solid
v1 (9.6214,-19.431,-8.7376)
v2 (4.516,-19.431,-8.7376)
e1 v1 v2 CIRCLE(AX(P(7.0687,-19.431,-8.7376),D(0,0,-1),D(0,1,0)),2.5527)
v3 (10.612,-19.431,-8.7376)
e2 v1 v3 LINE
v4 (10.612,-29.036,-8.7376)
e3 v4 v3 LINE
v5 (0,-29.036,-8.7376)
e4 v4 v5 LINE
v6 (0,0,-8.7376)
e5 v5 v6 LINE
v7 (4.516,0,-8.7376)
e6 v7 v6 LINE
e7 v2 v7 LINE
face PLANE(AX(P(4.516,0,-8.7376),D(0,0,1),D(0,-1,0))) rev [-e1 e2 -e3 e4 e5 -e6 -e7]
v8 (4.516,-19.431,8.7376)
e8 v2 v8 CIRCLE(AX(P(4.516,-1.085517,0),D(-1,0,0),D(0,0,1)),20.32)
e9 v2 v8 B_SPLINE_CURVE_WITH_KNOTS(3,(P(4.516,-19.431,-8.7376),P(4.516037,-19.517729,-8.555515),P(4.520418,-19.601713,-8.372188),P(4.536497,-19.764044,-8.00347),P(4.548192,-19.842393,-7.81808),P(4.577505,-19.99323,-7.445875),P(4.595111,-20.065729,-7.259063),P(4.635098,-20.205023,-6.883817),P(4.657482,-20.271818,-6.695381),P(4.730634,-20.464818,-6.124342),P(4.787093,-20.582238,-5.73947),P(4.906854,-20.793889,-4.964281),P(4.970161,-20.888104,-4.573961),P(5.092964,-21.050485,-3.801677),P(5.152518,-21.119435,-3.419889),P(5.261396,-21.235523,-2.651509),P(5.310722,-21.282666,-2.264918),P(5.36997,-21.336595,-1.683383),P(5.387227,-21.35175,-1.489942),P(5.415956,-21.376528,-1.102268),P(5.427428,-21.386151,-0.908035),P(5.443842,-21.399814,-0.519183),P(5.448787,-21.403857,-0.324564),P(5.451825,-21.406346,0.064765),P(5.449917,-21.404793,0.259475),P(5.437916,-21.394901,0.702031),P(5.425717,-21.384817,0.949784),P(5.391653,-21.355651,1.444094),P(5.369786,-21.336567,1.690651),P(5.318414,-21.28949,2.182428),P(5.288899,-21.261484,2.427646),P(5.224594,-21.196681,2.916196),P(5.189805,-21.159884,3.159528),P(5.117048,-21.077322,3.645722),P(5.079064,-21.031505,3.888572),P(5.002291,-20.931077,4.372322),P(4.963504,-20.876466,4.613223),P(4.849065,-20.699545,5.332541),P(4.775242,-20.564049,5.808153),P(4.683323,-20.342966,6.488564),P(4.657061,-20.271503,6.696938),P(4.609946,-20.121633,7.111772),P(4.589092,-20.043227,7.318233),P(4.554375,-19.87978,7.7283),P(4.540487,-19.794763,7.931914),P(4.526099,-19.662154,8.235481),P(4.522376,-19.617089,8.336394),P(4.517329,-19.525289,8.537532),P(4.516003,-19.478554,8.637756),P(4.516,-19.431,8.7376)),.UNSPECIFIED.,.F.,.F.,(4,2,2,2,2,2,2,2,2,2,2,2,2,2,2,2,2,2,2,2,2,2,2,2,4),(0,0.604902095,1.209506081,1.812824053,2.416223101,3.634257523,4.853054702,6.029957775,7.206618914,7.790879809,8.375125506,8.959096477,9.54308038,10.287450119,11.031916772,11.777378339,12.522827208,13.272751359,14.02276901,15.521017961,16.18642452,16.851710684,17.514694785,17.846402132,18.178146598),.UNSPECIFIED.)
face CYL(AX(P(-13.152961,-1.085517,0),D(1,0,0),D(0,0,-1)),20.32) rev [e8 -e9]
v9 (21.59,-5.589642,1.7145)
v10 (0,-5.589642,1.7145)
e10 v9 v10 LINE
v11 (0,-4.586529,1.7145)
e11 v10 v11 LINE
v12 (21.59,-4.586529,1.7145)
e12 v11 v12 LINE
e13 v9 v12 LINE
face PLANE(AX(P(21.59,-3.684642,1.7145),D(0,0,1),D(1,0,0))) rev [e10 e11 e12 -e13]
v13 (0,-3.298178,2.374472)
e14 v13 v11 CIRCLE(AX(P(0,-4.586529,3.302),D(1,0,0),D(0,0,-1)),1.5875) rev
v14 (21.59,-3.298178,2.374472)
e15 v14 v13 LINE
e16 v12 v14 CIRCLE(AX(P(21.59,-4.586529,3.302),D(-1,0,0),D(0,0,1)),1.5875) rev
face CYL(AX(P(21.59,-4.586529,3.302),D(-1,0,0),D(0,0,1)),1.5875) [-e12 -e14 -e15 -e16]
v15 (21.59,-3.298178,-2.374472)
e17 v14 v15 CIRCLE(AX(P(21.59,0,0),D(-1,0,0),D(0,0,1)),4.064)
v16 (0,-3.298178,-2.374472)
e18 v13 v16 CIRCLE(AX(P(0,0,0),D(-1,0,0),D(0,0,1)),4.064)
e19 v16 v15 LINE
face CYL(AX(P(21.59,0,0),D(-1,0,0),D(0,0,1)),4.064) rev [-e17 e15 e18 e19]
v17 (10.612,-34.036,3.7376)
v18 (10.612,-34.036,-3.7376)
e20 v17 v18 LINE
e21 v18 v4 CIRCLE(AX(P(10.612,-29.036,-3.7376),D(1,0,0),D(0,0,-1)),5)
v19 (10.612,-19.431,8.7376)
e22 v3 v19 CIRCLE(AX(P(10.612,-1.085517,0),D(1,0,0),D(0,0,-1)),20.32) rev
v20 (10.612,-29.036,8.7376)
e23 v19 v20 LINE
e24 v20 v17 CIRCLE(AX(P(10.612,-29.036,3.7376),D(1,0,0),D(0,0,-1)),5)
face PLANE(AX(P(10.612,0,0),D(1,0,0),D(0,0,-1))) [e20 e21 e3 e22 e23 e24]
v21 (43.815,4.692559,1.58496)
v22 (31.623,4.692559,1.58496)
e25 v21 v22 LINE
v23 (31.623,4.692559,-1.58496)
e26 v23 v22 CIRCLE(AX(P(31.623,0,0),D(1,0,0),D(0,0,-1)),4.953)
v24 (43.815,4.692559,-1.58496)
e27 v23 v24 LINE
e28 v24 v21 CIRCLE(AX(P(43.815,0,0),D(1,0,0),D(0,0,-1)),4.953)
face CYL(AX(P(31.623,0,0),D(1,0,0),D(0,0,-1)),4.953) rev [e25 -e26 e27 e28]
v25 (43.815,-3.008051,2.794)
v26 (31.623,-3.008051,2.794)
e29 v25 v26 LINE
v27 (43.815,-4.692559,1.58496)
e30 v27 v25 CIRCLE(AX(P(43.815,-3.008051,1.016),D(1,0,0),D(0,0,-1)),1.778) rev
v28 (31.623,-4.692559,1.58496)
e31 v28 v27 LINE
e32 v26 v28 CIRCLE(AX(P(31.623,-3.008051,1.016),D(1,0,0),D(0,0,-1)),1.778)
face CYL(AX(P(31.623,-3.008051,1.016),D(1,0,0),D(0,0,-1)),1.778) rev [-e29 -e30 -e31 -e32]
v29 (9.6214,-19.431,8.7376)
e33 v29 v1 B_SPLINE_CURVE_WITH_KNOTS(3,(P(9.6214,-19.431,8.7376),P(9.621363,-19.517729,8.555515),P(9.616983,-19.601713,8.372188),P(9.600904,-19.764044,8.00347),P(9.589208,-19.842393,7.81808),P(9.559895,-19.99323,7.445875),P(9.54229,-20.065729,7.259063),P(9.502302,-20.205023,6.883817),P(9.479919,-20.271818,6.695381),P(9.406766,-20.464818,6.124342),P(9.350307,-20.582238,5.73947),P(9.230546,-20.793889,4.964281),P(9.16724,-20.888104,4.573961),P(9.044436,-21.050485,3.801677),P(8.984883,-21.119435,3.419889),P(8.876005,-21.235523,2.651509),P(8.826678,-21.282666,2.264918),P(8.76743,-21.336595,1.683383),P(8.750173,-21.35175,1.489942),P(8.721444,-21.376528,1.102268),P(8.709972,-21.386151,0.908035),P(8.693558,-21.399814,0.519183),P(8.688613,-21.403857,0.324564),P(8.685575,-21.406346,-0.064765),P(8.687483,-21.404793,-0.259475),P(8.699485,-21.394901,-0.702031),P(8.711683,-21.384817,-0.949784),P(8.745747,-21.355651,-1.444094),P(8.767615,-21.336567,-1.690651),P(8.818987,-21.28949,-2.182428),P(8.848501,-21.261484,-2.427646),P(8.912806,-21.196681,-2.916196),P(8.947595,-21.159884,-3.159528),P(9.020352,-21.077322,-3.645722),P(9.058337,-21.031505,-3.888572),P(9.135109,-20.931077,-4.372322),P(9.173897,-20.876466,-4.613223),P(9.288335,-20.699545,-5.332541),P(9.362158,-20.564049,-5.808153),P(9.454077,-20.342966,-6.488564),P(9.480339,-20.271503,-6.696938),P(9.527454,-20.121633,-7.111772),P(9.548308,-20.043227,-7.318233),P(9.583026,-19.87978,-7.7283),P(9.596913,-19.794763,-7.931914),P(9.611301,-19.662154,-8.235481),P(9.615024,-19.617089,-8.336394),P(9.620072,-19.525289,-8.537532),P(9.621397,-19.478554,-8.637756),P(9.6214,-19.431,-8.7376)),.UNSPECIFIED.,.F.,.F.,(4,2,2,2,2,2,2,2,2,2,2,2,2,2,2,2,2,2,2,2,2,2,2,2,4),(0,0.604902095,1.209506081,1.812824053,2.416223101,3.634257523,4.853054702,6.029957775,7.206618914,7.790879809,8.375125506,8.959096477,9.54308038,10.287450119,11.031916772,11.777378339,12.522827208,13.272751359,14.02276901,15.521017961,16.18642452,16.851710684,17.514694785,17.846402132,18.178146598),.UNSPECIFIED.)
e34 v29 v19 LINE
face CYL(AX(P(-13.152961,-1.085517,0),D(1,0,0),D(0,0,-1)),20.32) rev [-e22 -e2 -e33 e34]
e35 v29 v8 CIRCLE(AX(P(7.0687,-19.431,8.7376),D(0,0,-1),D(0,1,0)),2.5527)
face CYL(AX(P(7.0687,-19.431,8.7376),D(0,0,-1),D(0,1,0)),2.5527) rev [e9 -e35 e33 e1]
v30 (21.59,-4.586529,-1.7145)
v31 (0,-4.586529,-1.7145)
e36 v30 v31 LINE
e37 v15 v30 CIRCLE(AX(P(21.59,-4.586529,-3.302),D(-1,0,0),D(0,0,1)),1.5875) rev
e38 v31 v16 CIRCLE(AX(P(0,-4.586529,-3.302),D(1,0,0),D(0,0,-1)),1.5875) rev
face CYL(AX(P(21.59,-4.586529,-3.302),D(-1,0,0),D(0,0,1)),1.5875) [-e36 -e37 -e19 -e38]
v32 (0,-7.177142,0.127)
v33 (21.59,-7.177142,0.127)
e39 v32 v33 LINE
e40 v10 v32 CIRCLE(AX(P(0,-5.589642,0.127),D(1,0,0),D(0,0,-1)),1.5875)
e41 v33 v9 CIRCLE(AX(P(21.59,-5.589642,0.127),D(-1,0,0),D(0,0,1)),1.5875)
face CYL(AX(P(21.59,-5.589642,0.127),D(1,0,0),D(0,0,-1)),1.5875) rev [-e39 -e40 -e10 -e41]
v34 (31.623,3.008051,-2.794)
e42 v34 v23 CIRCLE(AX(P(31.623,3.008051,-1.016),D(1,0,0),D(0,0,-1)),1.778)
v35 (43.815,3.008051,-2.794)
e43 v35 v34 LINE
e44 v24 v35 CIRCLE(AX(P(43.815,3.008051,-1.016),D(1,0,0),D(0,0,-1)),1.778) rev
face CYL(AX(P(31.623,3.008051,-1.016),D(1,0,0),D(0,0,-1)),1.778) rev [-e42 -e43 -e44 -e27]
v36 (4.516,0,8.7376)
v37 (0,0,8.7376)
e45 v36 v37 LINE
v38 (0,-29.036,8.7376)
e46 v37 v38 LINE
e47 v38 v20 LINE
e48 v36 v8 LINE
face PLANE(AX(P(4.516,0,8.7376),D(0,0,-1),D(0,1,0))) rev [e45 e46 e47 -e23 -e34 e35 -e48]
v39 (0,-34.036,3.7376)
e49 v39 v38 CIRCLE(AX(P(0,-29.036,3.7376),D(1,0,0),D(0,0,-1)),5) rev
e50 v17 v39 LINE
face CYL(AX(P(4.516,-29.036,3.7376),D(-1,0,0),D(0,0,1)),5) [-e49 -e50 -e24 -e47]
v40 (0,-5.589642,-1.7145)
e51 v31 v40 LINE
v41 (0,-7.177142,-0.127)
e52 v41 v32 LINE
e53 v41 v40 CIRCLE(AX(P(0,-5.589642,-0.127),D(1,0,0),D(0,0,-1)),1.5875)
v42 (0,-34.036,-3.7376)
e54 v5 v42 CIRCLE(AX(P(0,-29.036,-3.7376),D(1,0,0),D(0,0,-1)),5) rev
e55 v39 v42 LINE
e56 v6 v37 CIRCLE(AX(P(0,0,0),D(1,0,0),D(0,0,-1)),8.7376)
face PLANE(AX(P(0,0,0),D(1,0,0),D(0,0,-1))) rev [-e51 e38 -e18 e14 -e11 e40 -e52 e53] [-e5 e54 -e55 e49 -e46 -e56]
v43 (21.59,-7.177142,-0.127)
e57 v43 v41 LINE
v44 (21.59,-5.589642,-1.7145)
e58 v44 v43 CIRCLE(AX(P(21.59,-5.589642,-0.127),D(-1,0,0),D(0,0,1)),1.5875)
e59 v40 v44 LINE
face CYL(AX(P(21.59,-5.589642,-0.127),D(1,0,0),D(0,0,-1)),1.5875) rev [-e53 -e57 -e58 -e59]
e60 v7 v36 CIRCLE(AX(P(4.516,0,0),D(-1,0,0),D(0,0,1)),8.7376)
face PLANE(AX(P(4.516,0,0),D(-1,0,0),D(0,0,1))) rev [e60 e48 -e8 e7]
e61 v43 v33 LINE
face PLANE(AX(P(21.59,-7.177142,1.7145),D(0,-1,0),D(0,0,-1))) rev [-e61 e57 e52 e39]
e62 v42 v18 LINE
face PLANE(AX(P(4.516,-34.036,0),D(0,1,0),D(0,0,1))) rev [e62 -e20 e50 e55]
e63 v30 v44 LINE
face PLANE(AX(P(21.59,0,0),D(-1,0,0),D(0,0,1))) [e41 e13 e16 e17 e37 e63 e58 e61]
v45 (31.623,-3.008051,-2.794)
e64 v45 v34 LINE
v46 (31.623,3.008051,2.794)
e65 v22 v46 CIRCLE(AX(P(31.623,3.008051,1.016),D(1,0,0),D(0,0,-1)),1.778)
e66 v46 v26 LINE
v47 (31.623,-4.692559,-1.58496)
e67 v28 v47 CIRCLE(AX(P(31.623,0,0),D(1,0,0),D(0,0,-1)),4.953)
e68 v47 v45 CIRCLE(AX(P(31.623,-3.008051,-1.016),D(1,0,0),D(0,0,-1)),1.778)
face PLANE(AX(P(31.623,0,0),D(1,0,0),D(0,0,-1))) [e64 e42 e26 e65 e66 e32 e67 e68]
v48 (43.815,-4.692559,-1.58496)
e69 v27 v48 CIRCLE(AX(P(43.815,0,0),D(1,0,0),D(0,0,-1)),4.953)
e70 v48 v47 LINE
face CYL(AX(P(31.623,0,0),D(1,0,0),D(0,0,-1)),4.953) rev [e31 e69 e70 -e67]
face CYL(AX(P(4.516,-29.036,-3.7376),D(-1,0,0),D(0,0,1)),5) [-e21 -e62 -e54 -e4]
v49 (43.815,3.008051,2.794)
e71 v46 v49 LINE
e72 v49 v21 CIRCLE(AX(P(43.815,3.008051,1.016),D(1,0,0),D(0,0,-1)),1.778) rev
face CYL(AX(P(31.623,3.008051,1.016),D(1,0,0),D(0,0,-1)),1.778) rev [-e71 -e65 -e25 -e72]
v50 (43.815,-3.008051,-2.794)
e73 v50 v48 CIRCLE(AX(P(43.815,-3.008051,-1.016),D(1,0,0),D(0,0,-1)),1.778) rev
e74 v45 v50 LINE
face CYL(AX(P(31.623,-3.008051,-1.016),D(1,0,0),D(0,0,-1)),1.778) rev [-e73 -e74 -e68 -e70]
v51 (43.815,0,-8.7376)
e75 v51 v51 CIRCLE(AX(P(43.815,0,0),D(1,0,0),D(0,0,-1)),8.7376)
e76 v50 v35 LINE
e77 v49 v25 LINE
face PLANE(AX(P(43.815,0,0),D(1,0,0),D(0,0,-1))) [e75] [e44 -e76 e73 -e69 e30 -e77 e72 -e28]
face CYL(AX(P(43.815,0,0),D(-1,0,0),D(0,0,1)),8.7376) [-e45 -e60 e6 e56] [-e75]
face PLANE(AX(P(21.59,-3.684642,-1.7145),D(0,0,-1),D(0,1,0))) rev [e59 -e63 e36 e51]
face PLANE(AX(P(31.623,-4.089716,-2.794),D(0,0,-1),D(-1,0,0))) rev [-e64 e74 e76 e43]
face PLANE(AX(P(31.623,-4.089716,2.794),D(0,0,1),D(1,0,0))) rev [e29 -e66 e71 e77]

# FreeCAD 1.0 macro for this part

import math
import FreeCAD as App
import Part
import Sketcher

V = App.Vector
Q = App.Units.Quantity


def edges_at(feature, points):
    """Names of the edges that pass closest to the given points."""
    edges = feature.Shape.Edges
    near = lambda p: min(range(len(edges)), key=lambda i: edges[i].distToShape(Part.Vertex(*p))[0])
    return sorted({f"Edge{near(p) + 1}" for p in points})

doc = App.newDocument("Part")
params = doc.addObject("Spreadsheet::Sheet", "Params")
for row, (alias, value) in enumerate([
    ("sketch1_diameter", "0.688 in"),
    ("pad1_length", "1.725 in"),
    ("sketch2_radius", "0.344 in"),
    ("sketch2_width", "1.34 in"),
    ("pad2_length", "4.516 mm"),
    ("fillet_radius", "5 mm"),
    ("sketch3_height", "0.688 in"),
    ("pad3_length", "0.24 in"),
    ("sketch4_radius", "0.8 in"),
    ("sketch4_width", "0.025 in"),
    ("sketch4_height", "0.688 in"),
    ("pocket1_length", "0.24 in"),
    ("sketch5_radius", "0.195 in"),
    ("pocket2_length", "0.48 in"),
    ("fillet2_radius", "0.07 in"),
    ("sketch6_diameter", "0.201 in"),
    ("sketch7_radius", "0.16 in"),
    ("sketch7_height", "0.135 in"),
    ("pocket4_length", "0.85 in"),
    ("fillet3_radius", "0.0625 in"),
], start=1):
    params.set(f"A{row}", alias)
    params.set(f"B{row}", "=" + value)
    params.setAlias(f"B{row}", alias)

body = doc.addObject("PartDesign::Body", "Body")

# Sketch on YZ plane
sketch1 = body.newObject("Sketcher::SketchObject", "Sketch")
sketch1.AttachmentSupport = (doc.getObject("YZ_Plane"), [""])
sketch1.MapMode = "FlatFace"
sketch1.addGeometry(Part.Circle(V(0, 0, 0), V(0, 0, 1), 9), False)
sketch1.addConstraint(Sketcher.Constraint("Coincident", 0, 3, -1, 1))
sketch1.addConstraint(Sketcher.Constraint("Diameter", 0, Q("0.688 in")))
sketch1.setExpression("Constraints[1]", "Params.sketch1_diameter")
pad1 = body.newObject("PartDesign::Pad", "Pad")
pad1.Profile = sketch1
pad1.setExpression("Length", "Params.pad1_length")

# Sketch on YZ plane
sketch2 = body.newObject("Sketcher::SketchObject", "Sketch001")
sketch2.AttachmentSupport = (doc.getObject("YZ_Plane"), [""])
sketch2.MapMode = "FlatFace"
sketch2.addGeometry(Part.LineSegment(V(-34, 9, 0), V(0, 9, 0)), False)
sketch2.addGeometry(Part.ArcOfCircle(Part.Circle(V(0, 0, 0), V(0, 0, 1), 9), math.radians(90), math.radians(270)), False)
sketch2.addGeometry(Part.LineSegment(V(0, -9, 0), V(-34, -9, 0)), False)
sketch2.addGeometry(Part.LineSegment(V(-34, -9, 0), V(-34, 9, 0)), False)
sketch2.addConstraint(Sketcher.Constraint("Tangent", 0, 2, 1, 1))
sketch2.addConstraint(Sketcher.Constraint("Tangent", 1, 2, 2, 1))
sketch2.addConstraint(Sketcher.Constraint("Coincident", 2, 2, 3, 1))
sketch2.addConstraint(Sketcher.Constraint("Coincident", 3, 2, 0, 1))
sketch2.addConstraint(Sketcher.Constraint("Horizontal", 0))
sketch2.addConstraint(Sketcher.Constraint("Horizontal", 2))
sketch2.addConstraint(Sketcher.Constraint("Vertical", 3))
sketch2.addConstraint(Sketcher.Constraint("Coincident", 1, 3, -1, 1))
sketch2.addConstraint(Sketcher.Constraint("Radius", 1, Q("0.344 in")))
sketch2.addConstraint(Sketcher.Constraint("DistanceX", 0, 1, 0, 2, Q("1.34 in")))
sketch2.setExpression("Constraints[8]", "Params.sketch2_radius")
sketch2.setExpression("Constraints[9]", "Params.sketch2_width")
pad2 = body.newObject("PartDesign::Pad", "Pad001")
pad2.Profile = sketch2
pad2.setExpression("Length", "Params.pad2_length")
doc.recompute()

fillet = body.newObject("PartDesign::Fillet", "Fillet")
fillet.Base = (pad2, edges_at(pad2, [(2.258, -34.036, 8.738), (2.258, -34.036, -8.738)]))
fillet.setExpression("Radius", "Params.fillet_radius")

# Sketch on YZ plane
sketch3 = body.newObject("Sketcher::SketchObject", "Sketch002")
sketch3.AttachmentSupport = (doc.getObject("YZ_Plane"), [""])
sketch3.MapMode = "FlatFace"
sketch3.AttachmentOffset = App.Placement(V(0, 0, 10.612), App.Rotation())
sketch3.addGeometry(Part.LineSegment(V(-19, 9, 0), V(-29, 9, 0)), False)
sketch3.addGeometry(Part.ArcOfCircle(Part.Circle(V(-29, 4, 0), V(0, 0, 1), 5), math.radians(90), math.radians(180)), False)
sketch3.addGeometry(Part.LineSegment(V(-34, 4, 0), V(-34, -4, 0)), False)
sketch3.addGeometry(Part.ArcOfCircle(Part.Circle(V(-29, -4, 0), V(0, 0, 1), 5), math.radians(180), math.radians(270)), False)
sketch3.addGeometry(Part.LineSegment(V(-29, -9, 0), V(-19, -9, 0)), False)
sketch3.addGeometry(Part.LineSegment(V(-19, -9, 0), V(-19, 9, 0)), False)
sketch3.addConstraint(Sketcher.Constraint("Tangent", 0, 2, 1, 1))
sketch3.addConstraint(Sketcher.Constraint("Tangent", 1, 2, 2, 1))
sketch3.addConstraint(Sketcher.Constraint("Tangent", 2, 2, 3, 1))
sketch3.addConstraint(Sketcher.Constraint("Tangent", 3, 2, 4, 1))
sketch3.addConstraint(Sketcher.Constraint("Coincident", 4, 2, 5, 1))
sketch3.addConstraint(Sketcher.Constraint("Coincident", 5, 2, 0, 1))
sketch3.addConstraint(Sketcher.Constraint("Horizontal", 0))
sketch3.addConstraint(Sketcher.Constraint("Vertical", 2))
sketch3.addConstraint(Sketcher.Constraint("Horizontal", 4))
sketch3.addConstraint(Sketcher.Constraint("Vertical", 5))
sketch3.addConstraint(Sketcher.Constraint("Equal", 1, 3))
sketch3.addConstraint(Sketcher.Constraint("DistanceX", 2, 2, 4, 2, Q("0.6 in")))
sketch3.addConstraint(Sketcher.Constraint("DistanceY", 5, 1, 5, 2, Q("0.688 in")))
sketch3.addConstraint(Sketcher.Constraint("DistanceX", 1, 2, -1, 1, Q("1.34 in")))
sketch3.addConstraint(Sketcher.Constraint("Radius", 1, 5.0))
sketch3.addConstraint(Sketcher.Constraint("DistanceY", -1, 1, 0, 2, Q("0.344 in")))
sketch3.setExpression("Constraints[12]", "Params.sketch3_height")
pad3 = body.newObject("PartDesign::Pad", "Pad002")
pad3.Profile = sketch3
pad3.setExpression("Length", "Params.pad3_length")
pad3.Reversed = True

# Sketch on YZ plane
sketch4 = body.newObject("Sketcher::SketchObject", "Sketch003")
sketch4.AttachmentSupport = (doc.getObject("YZ_Plane"), [""])
sketch4.MapMode = "FlatFace"
sketch4.AttachmentOffset = App.Placement(V(0, 0, 10.612), App.Rotation())
sketch4.addGeometry(Part.LineSegment(V(-19.4, -8.7, 0), V(-18.8, -8.7, 0)), False)
sketch4.addGeometry(Part.LineSegment(V(-18.8, -8.7, 0), V(-18.8, 8.7, 0)), False)
sketch4.addGeometry(Part.LineSegment(V(-18.8, 8.7, 0), V(-19.4, 8.7, 0)), False)
sketch4.addGeometry(Part.ArcOfCircle(Part.Circle(V(-1.1, 0, 0), V(0, 0, 1), 20.3), math.radians(155), math.radians(205)), False)
sketch4.addConstraint(Sketcher.Constraint("Coincident", 0, 2, 1, 1))
sketch4.addConstraint(Sketcher.Constraint("Coincident", 1, 2, 2, 1))
sketch4.addConstraint(Sketcher.Constraint("Coincident", 2, 2, 3, 1))
sketch4.addConstraint(Sketcher.Constraint("Coincident", 3, 2, 0, 1))
sketch4.addConstraint(Sketcher.Constraint("Horizontal", 0))
sketch4.addConstraint(Sketcher.Constraint("Vertical", 1))
sketch4.addConstraint(Sketcher.Constraint("Horizontal", 2))
sketch4.addConstraint(Sketcher.Constraint("Symmetric", 2, 2, 3, 2, -1))
sketch4.addConstraint(Sketcher.Constraint("Radius", 3, Q("0.8 in")))
sketch4.addConstraint(Sketcher.Constraint("DistanceX", 0, 1, 0, 2, Q("0.025 in")))
sketch4.addConstraint(Sketcher.Constraint("DistanceY", 1, 1, 1, 2, Q("0.688 in")))
sketch4.addConstraint(Sketcher.Constraint("DistanceX", 0, 2, -1, 1, Q("0.74 in")))
sketch4.setExpression("Constraints[8]", "Params.sketch4_radius")
sketch4.setExpression("Constraints[9]", "Params.sketch4_width")
sketch4.setExpression("Constraints[10]", "Params.sketch4_height")
pocket1 = body.newObject("PartDesign::Pocket", "Pocket")
pocket1.Profile = sketch4
pocket1.setExpression("Length", "Params.pocket1_length")

# Sketch on YZ plane
sketch5 = body.newObject("Sketcher::SketchObject", "Sketch004")
sketch5.AttachmentSupport = (doc.getObject("YZ_Plane"), [""])
sketch5.MapMode = "FlatFace"
sketch5.AttachmentOffset = App.Placement(V(0, 0, 1.725 * 25.4), App.Rotation())
sketch5.addGeometry(Part.LineSegment(V(-4.1, -2.8, 0), V(4.1, -2.8, 0)), False)
sketch5.addGeometry(Part.ArcOfCircle(Part.Circle(V(0, 0, 0), V(0, 0, 1), 5), math.radians(-34), math.radians(34)), False)
sketch5.addGeometry(Part.LineSegment(V(4.1, 2.8, 0), V(-4.1, 2.8, 0)), False)
sketch5.addGeometry(Part.ArcOfCircle(Part.Circle(V(0, 0, 0), V(0, 0, 1), 5), math.radians(146), math.radians(214)), False)
sketch5.addConstraint(Sketcher.Constraint("Coincident", 0, 2, 1, 1))
sketch5.addConstraint(Sketcher.Constraint("Coincident", 1, 2, 2, 1))
sketch5.addConstraint(Sketcher.Constraint("Coincident", 2, 2, 3, 1))
sketch5.addConstraint(Sketcher.Constraint("Coincident", 3, 2, 0, 1))
sketch5.addConstraint(Sketcher.Constraint("Horizontal", 0))
sketch5.addConstraint(Sketcher.Constraint("Horizontal", 2))
sketch5.addConstraint(Sketcher.Constraint("Coincident", 1, 3, -1, 1))
sketch5.addConstraint(Sketcher.Constraint("Coincident", 3, 3, -1, 1))
sketch5.addConstraint(Sketcher.Constraint("Equal", 1, 3))
sketch5.addConstraint(Sketcher.Constraint("Vertical", 0, 2, 1, 2))
sketch5.addConstraint(Sketcher.Constraint("Radius", 1, Q("0.195 in")))
sketch5.addConstraint(Sketcher.Constraint("DistanceY", 0, 2, -1, 1, Q("0.11 in")))
sketch5.setExpression("Constraints[10]", "Params.sketch5_radius")
pocket2 = body.newObject("PartDesign::Pocket", "Pocket001")
pocket2.Profile = sketch5
pocket2.setExpression("Length", "Params.pocket2_length")
doc.recompute()

fillet2 = body.newObject("PartDesign::Fillet", "Fillet001")
fillet2.Base = (pocket2, edges_at(pocket2, [
    (37.719, 4.09, 2.794),
    (37.719, 4.09, -2.794),
    (37.719, -4.09, -2.794),
    (37.719, -4.09, 2.794),
]))
fillet2.setExpression("Radius", "Params.fillet2_radius")

# Sketch on XY plane
sketch6 = body.newObject("Sketcher::SketchObject", "Sketch005")
sketch6.AttachmentSupport = (doc.getObject("XY_Plane"), [""])
sketch6.MapMode = "FlatFace"
sketch6.AttachmentOffset = App.Placement(V(0, 0, -0.344 * 25.4), App.Rotation())
sketch6.addGeometry(Part.Circle(V(7.1, -19.4, 0), V(0, 0, 1), 2.6), False)
sketch6.addConstraint(Sketcher.Constraint("Diameter", 0, Q("0.201 in")))
sketch6.addConstraint(Sketcher.Constraint("DistanceY", 0, 3, -1, 1, Q("0.765 in")))
sketch6.addConstraint(Sketcher.Constraint("DistanceX", -1, 1, 0, 3, 7.0687))
sketch6.setExpression("Constraints[0]", "Params.sketch6_diameter")
pocket3 = body.newObject("PartDesign::Pocket", "Pocket002")
pocket3.Profile = sketch6
pocket3.Type = "ThroughAll"
pocket3.Reversed = True

# Sketch on YZ plane
sketch7 = body.newObject("Sketcher::SketchObject", "Sketch006")
sketch7.AttachmentSupport = (doc.getObject("YZ_Plane"), [""])
sketch7.MapMode = "FlatFace"
sketch7.addGeometry(Part.LineSegment(V(-7.2, 1.7, 0), V(-3.7, 1.7, 0)), False)
sketch7.addGeometry(Part.ArcOfCircle(Part.Circle(V(0, 0, 0), V(0, 0, 1), 4.1), math.radians(-155), math.radians(155)), False)
sketch7.addGeometry(Part.LineSegment(V(-3.7, -1.7, 0), V(-7.2, -1.7, 0)), False)
sketch7.addGeometry(Part.LineSegment(V(-7.2, -1.7, 0), V(-7.2, 1.7, 0)), False)
sketch7.addConstraint(Sketcher.Constraint("Coincident", 0, 2, 1, 2))
sketch7.addConstraint(Sketcher.Constraint("Coincident", 1, 1, 2, 1))
sketch7.addConstraint(Sketcher.Constraint("Coincident", 2, 2, 3, 1))
sketch7.addConstraint(Sketcher.Constraint("Coincident", 3, 2, 0, 1))
sketch7.addConstraint(Sketcher.Constraint("Horizontal", 0))
sketch7.addConstraint(Sketcher.Constraint("Horizontal", 2))
sketch7.addConstraint(Sketcher.Constraint("Vertical", 3))
sketch7.addConstraint(Sketcher.Constraint("Coincident", 1, 3, -1, 1))
sketch7.addConstraint(Sketcher.Constraint("Vertical", 0, 2, 1, 1))
sketch7.addConstraint(Sketcher.Constraint("Radius", 1, Q("0.16 in")))
sketch7.addConstraint(Sketcher.Constraint("DistanceY", 3, 1, 3, 2, Q("0.135 in")))
sketch7.addConstraint(Sketcher.Constraint("DistanceX", 0, 1, 0, 2, Q("0.1375 in")))
sketch7.setExpression("Constraints[9]", "Params.sketch7_radius")
sketch7.setExpression("Constraints[10]", "Params.sketch7_height")
pocket4 = body.newObject("PartDesign::Pocket", "Pocket003")
pocket4.Profile = sketch7
pocket4.setExpression("Length", "Params.pocket4_length")
pocket4.Reversed = True
doc.recompute()

fillet3 = body.newObject("PartDesign::Fillet", "Fillet002")
fillet3.Base = (pocket4, edges_at(pocket4, [
    (10.795, -3.685, -1.714),
    (10.795, -3.685, 1.714),
    (10.795, -7.177, 1.714),
    (10.795, -7.177, -1.714),
]))
fillet3.setExpression("Radius", "Params.fillet3_radius")

doc.recompute()
